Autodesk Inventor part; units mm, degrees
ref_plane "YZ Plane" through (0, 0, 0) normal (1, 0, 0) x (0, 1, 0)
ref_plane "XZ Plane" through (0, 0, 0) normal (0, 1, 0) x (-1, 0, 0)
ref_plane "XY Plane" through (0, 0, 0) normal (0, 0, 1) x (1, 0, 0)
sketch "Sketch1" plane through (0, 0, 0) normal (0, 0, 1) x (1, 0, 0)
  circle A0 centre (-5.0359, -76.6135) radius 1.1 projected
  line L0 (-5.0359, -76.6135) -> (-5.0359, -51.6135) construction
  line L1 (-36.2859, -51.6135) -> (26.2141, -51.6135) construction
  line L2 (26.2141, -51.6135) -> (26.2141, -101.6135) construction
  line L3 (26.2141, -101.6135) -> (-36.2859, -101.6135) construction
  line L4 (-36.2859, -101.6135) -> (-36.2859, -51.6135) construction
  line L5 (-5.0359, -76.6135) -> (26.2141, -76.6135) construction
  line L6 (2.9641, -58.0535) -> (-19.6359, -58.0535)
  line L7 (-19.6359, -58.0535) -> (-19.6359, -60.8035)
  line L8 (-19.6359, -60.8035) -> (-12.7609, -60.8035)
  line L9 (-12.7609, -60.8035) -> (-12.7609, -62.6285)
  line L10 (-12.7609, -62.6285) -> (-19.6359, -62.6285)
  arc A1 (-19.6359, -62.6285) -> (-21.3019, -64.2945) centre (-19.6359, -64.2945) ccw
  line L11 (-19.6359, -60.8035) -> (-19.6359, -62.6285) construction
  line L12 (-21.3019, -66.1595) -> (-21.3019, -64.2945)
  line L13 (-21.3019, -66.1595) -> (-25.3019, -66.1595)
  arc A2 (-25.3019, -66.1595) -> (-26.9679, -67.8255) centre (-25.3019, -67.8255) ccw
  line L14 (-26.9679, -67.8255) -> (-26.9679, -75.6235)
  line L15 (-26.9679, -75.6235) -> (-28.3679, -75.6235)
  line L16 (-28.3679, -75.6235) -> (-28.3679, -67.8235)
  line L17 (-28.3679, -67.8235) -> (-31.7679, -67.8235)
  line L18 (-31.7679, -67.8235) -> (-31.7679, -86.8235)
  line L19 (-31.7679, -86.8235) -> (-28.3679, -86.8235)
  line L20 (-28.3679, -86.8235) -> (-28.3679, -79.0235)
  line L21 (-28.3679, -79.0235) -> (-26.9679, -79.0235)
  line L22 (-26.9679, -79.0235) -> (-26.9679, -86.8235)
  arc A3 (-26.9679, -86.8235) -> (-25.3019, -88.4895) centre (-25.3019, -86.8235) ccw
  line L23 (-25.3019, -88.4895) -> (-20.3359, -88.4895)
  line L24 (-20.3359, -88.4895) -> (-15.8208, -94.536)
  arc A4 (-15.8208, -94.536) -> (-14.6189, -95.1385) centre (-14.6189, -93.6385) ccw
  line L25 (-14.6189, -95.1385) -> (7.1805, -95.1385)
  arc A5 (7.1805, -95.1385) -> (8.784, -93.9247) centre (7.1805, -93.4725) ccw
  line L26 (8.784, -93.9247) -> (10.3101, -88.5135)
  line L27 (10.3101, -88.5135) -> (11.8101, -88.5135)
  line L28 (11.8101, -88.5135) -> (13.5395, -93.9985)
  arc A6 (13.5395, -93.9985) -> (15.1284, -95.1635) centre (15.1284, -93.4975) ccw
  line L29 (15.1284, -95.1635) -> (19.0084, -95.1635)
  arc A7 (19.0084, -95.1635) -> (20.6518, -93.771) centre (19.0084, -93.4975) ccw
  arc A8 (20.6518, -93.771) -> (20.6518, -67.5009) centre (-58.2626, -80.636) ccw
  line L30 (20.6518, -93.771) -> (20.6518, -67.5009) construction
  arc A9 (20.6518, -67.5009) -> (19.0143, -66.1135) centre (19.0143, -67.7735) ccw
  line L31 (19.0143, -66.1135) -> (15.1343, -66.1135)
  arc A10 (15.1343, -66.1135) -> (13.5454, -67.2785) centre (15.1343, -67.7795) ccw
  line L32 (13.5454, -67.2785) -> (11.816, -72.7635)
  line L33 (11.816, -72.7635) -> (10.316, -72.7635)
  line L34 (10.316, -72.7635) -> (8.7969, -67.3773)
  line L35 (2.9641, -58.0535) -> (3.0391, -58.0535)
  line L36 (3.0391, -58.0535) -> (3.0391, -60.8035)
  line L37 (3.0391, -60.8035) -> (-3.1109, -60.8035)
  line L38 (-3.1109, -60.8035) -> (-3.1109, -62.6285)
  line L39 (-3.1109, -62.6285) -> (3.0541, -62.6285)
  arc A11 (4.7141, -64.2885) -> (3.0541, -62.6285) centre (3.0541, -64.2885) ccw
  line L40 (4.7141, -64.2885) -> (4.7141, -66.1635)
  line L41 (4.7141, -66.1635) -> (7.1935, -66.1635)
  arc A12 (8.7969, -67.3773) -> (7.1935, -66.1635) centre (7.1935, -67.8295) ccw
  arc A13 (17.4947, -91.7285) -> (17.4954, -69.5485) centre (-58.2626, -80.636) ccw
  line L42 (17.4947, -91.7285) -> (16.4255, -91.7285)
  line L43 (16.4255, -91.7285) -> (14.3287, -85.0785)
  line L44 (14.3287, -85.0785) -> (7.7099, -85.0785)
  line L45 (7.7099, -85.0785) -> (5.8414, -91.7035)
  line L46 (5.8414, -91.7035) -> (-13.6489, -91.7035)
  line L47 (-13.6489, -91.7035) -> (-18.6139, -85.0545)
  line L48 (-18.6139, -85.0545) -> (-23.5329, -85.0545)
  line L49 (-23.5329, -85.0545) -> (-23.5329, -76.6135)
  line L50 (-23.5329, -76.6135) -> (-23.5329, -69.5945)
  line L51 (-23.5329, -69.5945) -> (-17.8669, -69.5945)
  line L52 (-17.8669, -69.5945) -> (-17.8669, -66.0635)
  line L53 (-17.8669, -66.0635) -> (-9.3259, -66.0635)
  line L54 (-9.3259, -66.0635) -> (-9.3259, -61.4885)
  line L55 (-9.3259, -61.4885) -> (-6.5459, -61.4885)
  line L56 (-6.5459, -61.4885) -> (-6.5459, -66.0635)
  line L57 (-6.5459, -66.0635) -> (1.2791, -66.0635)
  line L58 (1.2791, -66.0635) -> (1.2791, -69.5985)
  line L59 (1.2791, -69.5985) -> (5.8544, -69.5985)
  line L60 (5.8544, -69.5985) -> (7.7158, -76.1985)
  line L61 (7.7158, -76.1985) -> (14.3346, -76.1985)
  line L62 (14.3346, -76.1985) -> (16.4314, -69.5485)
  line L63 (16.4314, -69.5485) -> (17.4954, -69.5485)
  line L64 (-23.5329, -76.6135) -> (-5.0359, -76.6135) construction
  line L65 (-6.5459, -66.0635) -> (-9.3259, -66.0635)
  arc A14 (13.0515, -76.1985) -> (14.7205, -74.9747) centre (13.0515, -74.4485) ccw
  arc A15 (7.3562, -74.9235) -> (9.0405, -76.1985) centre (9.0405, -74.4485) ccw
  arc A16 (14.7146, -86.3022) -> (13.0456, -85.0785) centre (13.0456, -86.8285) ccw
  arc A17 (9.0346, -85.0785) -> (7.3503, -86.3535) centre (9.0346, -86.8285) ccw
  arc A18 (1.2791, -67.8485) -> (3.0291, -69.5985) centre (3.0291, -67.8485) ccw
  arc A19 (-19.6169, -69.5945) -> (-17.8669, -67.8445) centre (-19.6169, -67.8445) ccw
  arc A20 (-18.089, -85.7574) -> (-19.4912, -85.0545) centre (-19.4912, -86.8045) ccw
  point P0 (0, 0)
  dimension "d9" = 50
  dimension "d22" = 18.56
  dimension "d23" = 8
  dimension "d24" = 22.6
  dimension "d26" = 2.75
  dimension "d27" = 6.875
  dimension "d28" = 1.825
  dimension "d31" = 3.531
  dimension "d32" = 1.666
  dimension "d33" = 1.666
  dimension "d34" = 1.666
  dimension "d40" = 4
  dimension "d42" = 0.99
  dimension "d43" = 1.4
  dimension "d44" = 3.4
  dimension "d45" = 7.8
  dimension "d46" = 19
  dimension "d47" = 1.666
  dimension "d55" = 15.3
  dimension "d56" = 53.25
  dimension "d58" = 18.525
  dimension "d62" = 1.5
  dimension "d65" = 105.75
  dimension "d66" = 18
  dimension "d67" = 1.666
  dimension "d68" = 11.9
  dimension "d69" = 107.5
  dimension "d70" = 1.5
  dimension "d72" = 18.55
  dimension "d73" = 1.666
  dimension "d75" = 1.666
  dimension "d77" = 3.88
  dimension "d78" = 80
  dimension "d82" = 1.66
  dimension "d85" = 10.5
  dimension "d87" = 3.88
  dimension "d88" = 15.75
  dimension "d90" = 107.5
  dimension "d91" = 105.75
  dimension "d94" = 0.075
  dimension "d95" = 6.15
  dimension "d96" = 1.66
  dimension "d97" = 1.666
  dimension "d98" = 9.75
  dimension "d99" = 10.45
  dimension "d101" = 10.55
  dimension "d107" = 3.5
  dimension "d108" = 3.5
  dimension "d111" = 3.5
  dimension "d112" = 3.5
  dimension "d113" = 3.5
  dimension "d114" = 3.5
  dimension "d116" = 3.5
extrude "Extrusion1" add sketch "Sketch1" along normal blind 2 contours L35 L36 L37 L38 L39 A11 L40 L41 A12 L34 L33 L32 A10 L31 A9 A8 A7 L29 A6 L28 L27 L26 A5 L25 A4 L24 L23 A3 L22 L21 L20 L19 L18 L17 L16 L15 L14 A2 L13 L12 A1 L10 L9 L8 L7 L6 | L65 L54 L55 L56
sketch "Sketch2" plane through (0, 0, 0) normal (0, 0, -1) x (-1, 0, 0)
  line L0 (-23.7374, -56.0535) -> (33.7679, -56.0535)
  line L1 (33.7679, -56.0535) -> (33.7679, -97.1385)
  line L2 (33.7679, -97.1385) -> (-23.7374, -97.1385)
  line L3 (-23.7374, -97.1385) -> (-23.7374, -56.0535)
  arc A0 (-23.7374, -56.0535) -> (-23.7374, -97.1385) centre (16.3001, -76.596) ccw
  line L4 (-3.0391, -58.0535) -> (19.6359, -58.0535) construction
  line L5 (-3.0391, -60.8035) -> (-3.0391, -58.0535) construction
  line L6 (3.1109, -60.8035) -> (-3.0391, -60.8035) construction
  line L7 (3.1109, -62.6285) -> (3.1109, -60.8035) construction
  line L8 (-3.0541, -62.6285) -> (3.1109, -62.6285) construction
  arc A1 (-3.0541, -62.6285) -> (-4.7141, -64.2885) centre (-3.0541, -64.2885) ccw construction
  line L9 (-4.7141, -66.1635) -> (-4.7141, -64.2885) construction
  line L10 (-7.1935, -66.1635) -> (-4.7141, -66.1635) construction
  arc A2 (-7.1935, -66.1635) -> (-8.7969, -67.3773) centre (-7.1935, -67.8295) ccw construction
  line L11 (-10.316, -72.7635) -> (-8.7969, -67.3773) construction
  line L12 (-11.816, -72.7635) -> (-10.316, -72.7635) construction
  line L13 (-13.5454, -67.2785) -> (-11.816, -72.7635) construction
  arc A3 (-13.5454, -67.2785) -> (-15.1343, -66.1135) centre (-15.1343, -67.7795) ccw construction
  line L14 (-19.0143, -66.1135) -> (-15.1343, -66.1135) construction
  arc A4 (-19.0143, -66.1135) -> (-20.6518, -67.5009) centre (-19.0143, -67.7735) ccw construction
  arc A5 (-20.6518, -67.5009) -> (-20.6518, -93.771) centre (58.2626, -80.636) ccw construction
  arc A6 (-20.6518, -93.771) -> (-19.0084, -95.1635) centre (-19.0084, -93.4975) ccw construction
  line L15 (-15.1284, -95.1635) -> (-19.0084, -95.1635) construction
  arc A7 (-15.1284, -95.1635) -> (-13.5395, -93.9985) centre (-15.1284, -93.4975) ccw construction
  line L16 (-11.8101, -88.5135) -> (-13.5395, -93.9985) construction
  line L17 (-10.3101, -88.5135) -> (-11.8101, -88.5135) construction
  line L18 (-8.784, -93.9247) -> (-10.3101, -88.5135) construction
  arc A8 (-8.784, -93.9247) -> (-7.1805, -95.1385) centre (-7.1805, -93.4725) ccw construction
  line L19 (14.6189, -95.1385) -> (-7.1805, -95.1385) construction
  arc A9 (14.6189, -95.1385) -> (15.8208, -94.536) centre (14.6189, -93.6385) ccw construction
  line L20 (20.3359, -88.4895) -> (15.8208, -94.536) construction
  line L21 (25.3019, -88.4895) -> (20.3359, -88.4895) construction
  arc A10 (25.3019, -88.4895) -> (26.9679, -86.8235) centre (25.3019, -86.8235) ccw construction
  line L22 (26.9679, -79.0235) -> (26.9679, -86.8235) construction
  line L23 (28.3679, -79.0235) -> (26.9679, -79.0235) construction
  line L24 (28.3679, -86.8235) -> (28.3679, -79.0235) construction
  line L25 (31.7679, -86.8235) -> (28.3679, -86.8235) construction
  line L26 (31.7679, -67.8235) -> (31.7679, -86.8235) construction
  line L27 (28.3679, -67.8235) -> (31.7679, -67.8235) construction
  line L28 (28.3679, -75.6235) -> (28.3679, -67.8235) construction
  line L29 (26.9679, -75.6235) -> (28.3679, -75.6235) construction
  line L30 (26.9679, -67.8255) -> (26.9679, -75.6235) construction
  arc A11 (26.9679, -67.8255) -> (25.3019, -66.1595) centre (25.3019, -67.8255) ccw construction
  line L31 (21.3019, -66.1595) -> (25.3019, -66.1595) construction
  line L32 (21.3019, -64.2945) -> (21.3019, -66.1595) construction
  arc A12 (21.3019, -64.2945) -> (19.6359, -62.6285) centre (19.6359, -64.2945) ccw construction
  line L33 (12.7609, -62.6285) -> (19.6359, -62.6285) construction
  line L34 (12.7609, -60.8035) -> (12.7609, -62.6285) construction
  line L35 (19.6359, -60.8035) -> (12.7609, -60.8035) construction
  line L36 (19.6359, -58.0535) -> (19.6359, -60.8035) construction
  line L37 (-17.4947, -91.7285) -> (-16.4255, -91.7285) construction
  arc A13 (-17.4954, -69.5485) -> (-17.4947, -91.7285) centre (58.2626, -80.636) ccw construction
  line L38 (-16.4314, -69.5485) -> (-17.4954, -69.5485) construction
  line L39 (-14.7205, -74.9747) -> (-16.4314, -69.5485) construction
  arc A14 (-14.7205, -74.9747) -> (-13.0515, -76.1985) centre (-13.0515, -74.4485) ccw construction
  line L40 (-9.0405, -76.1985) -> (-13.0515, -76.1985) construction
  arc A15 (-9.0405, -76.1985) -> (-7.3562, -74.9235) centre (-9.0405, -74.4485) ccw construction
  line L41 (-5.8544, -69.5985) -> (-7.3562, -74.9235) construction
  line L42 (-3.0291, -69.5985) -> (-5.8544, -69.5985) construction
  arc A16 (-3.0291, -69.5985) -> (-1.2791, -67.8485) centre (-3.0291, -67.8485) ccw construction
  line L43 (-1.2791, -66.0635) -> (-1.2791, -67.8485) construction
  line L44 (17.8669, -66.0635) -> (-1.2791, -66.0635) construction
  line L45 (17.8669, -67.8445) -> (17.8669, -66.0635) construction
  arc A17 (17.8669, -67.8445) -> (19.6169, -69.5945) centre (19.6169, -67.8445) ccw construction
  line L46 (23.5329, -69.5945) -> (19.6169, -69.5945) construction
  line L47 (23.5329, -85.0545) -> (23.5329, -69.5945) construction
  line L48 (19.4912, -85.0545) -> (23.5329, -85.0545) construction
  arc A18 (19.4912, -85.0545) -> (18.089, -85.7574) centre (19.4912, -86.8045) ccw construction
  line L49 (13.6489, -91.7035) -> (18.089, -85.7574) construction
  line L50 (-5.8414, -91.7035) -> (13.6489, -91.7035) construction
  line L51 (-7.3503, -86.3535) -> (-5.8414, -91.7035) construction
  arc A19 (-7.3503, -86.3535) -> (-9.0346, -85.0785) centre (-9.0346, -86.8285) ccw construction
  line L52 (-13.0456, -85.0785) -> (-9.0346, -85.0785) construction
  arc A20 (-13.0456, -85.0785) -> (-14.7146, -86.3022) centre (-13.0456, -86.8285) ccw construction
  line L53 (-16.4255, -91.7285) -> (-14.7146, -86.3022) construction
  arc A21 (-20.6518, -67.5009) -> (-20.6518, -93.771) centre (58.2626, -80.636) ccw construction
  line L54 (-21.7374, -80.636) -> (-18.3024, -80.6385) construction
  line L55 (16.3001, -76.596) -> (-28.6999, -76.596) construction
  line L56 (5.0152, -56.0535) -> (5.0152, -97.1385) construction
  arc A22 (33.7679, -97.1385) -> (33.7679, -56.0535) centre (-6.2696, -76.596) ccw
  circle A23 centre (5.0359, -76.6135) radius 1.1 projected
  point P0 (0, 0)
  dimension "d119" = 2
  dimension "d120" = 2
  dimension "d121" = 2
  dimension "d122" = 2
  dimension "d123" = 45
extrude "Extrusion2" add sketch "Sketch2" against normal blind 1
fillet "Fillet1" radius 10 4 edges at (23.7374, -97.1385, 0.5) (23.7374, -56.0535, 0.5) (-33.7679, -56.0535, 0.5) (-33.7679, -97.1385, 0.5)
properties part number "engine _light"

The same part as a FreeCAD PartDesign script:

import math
import FreeCAD as App
import Part
import Sketcher

V = App.Vector


def edges_at(feature, points):
    """Names of the edges that pass closest to the given points."""
    edges = feature.Shape.Edges
    near = lambda p: min(range(len(edges)), key=lambda i: edges[i].distToShape(Part.Vertex(*p))[0])
    return sorted({f"Edge{near(p) + 1}" for p in points})

doc = App.newDocument("Part")
params = doc.addObject("Spreadsheet::Sheet", "Params")
for row, (alias, value) in enumerate([
    ("sketch1_radius", "80 mm"),
    ("sketch1_radius2", "1.5 mm"),
    ("sketch1_width", "4 mm"),
    ("sketch1_height", "19 mm"),
    ("sketch1_radius3", "1.66 mm"),
    ("pad1_length", "2 mm"),
    ("sketch2_radius", "45 mm"),
    ("sketch2_diameter", "2.2 mm"),
    ("pad2_length", "1 mm"),
    ("fillet_radius", "10 mm"),
], start=1):
    params.set(f"A{row}", alias)
    params.set(f"B{row}", "=" + value)
    params.setAlias(f"B{row}", alias)

body = doc.addObject("PartDesign::Body", "Body")

# Sketch on XY plane
sketch1 = body.newObject("Sketcher::SketchObject", "Sketch")
sketch1.AttachmentSupport = (doc.getObject("XY_Plane"), [""])
sketch1.MapMode = "FlatFace"
sketch1.addGeometry([
    Part.LineSegment(V(3.0391, -58.0535, 0), V(-19.6359, -58.0535, 0)),  # 0
    Part.LineSegment(V(-19.6359, -58.0535, 0), V(-19.6359, -60.8035, 0)),  # 1
    Part.LineSegment(V(-19.6359, -60.8035, 0), V(-12.7609, -60.8035, 0)),  # 2
    Part.LineSegment(V(-12.7609, -60.8035, 0), V(-12.7609, -62.6285, 0)),  # 3
    Part.LineSegment(V(-12.7609, -62.6285, 0), V(-19.6359, -62.6285, 0)),  # 4
    Part.ArcOfCircle(Part.Circle(V(-19.6359, -64.2945, 0), V(0, 0, 1), 1.666), math.radians(90), math.radians(180)),  # 5
    Part.LineSegment(V(-21.3019, -64.2945, 0), V(-21.3019, -66.1595, 0)),  # 6
    Part.LineSegment(V(-21.3019, -66.1595, 0), V(-25.3019, -66.1595, 0)),  # 7
    Part.ArcOfCircle(Part.Circle(V(-25.3019, -67.8255, 0), V(0, 0, 1), 1.666), math.radians(90), math.radians(180)),  # 8
    Part.LineSegment(V(-26.9679, -67.8255, 0), V(-26.9679, -75.6235, 0)),  # 9
    Part.LineSegment(V(-26.9679, -75.6235, 0), V(-28.3679, -75.6235, 0)),  # 10
    Part.LineSegment(V(-28.3679, -75.6235, 0), V(-28.3679, -67.8235, 0)),  # 11
    Part.LineSegment(V(-28.3679, -67.8235, 0), V(-31.7679, -67.8235, 0)),  # 12
    Part.LineSegment(V(-31.7679, -67.8235, 0), V(-31.7679, -86.8235, 0)),  # 13
    Part.LineSegment(V(-31.7679, -86.8235, 0), V(-28.3679, -86.8235, 0)),  # 14
    Part.LineSegment(V(-28.3679, -86.8235, 0), V(-28.3679, -79.0235, 0)),  # 15
    Part.LineSegment(V(-28.3679, -79.0235, 0), V(-26.9679, -79.0235, 0)),  # 16
    Part.LineSegment(V(-26.9679, -79.0235, 0), V(-26.9679, -86.8235, 0)),  # 17
    Part.ArcOfCircle(Part.Circle(V(-25.3019, -86.8235, 0), V(0, 0, 1), 1.666), math.radians(180), math.radians(270)),  # 18
    Part.LineSegment(V(-25.3019, -88.4895, 0), V(-20.3359, -88.4895, 0)),  # 19
    Part.LineSegment(V(-20.3359, -88.4895, 0), V(-15.8208, -94.536, 0)),  # 20
    Part.ArcOfCircle(Part.Circle(V(-14.6189, -93.6385, 0), V(0, 0, 1), 1.500023), math.radians(-143.25004), math.radians(-90)),  # 21
    Part.LineSegment(V(-14.6189, -95.1385, 0), V(7.1805, -95.1385, 0)),  # 22
    Part.ArcOfCircle(Part.Circle(V(7.1805, -93.4725, 0), V(0, 0, 1), 1.666), math.radians(-90), math.radians(-15.748882)),  # 23
    Part.LineSegment(V(8.784, -93.9247, 0), V(10.3101, -88.5135, 0)),  # 24
    Part.LineSegment(V(10.3101, -88.5135, 0), V(11.8101, -88.5135, 0)),  # 25
    Part.LineSegment(V(11.8101, -88.5135, 0), V(13.5395, -93.9985, 0)),  # 26
    Part.ArcOfCircle(Part.Circle(V(15.1284, -93.4975, 0), V(0, 0, 1), 1.666014), math.radians(-162.499286), math.radians(-90)),  # 27
    Part.LineSegment(V(15.1284, -95.1635, 0), V(19.0084, -95.1635, 0)),  # 28
    Part.ArcOfCircle(Part.Circle(V(19.0084, -93.4975, 0), V(0, 0, 1), 1.666), math.radians(-90), math.radians(-9.448753)),  # 29
    Part.ArcOfCircle(Part.Circle(V(-58.2626, -80.636, 0), V(0, 0, 1), 80.000067), math.radians(-9.45003), math.radians(9.450101)),  # 30
    Part.ArcOfCircle(Part.Circle(V(19.0143, -67.7735, 0), V(0, 0, 1), 1.660035), math.radians(9.451541), math.radians(90)),  # 31
    Part.LineSegment(V(19.0143, -66.1135, 0), V(15.1343, -66.1135, 0)),  # 32
    Part.ArcOfCircle(Part.Circle(V(15.1343, -67.7795, 0), V(0, 0, 1), 1.666), math.radians(90), math.radians(162.499286)),  # 33
    Part.LineSegment(V(13.5454, -67.2785, 0), V(11.816, -72.7635, 0)),  # 34
    Part.LineSegment(V(11.816, -72.7635, 0), V(10.316, -72.7635, 0)),  # 35
    Part.LineSegment(V(10.316, -72.7635, 0), V(8.7969, -67.3773, 0)),  # 36
    Part.ArcOfCircle(Part.Circle(V(7.1935, -67.8295, 0), V(0, 0, 1), 1.665946), math.radians(15.749816), math.radians(90)),  # 37
    Part.LineSegment(V(7.1935, -66.1635, 0), V(4.7141, -66.1635, 0)),  # 38
    Part.LineSegment(V(4.7141, -66.1635, 0), V(4.7141, -64.2885, 0)),  # 39
    Part.ArcOfCircle(Part.Circle(V(3.0541, -64.2885, 0), V(0, 0, 1), 1.66), math.radians(0), math.radians(90)),  # 40
    Part.LineSegment(V(3.0541, -62.6285, 0), V(-3.1109, -62.6285, 0)),  # 41
    Part.LineSegment(V(-3.1109, -62.6285, 0), V(-3.1109, -60.8035, 0)),  # 42
    Part.LineSegment(V(-3.1109, -60.8035, 0), V(3.0391, -60.8035, 0)),  # 43
    Part.LineSegment(V(3.0391, -60.8035, 0), V(3.0391, -58.0535, 0)),  # 44
    Part.ArcOfCircle(Part.Circle(V(-58.261102, -80.636109, 0), V(0, 0, 1), 76.563585), math.radians(-8.330223), math.radians(8.326607)),  # 45
    Part.LineSegment(V(17.4947, -91.7285, 0), V(16.4255, -91.7285, 0)),  # 46
    Part.LineSegment(V(16.4255, -91.7285, 0), V(14.714548, -86.302216, 0)),  # 47
    Part.ArcOfCircle(Part.Circle(V(13.0456, -86.8285, 0), V(0, 0, 1), 1.750015), math.radians(17.502071), math.radians(90)),  # 48
    Part.LineSegment(V(13.0456, -85.0785, 0), V(9.0346, -85.0785, 0)),  # 49
    Part.ArcOfCircle(Part.Circle(V(9.0346, -86.8285, 0), V(0, 0, 1), 1.75), math.radians(90), math.radians(164.250685)),  # 50
    Part.LineSegment(V(7.350302, -86.3535, 0), V(5.8414, -91.7035, 0)),  # 51
    Part.LineSegment(V(5.8414, -91.7035, 0), V(-13.6489, -91.7035, 0)),  # 52
    Part.LineSegment(V(-13.6489, -91.7035, 0), V(-18.089016, -85.757412, 0)),  # 53
    Part.ArcOfCircle(Part.Circle(V(-19.4912, -86.8045, 0), V(0, 0, 1), 1.750024), math.radians(36.750724), math.radians(90)),  # 54
    Part.LineSegment(V(-19.4912, -85.0545, 0), V(-23.5329, -85.0545, 0)),  # 55
    Part.LineSegment(V(-23.5329, -85.0545, 0), V(-23.5329, -69.5945, 0)),  # 56
    Part.LineSegment(V(-23.5329, -69.5945, 0), V(-19.6169, -69.5945, 0)),  # 57
    Part.ArcOfCircle(Part.Circle(V(-19.6169, -67.8445, 0), V(0, 0, 1), 1.75), math.radians(-90), math.radians(0)),  # 58
    Part.LineSegment(V(-17.8669, -67.8445, 0), V(-17.8669, -66.0635, 0)),  # 59
    Part.LineSegment(V(-17.8669, -66.0635, 0), V(1.2791, -66.0635, 0)),  # 60
    Part.LineSegment(V(1.2791, -66.0635, 0), V(1.2791, -67.8485, 0)),  # 61
    Part.ArcOfCircle(Part.Circle(V(3.0291, -67.8485, 0), V(0, 0, 1), 1.75), math.radians(180), math.radians(270)),  # 62
    Part.LineSegment(V(3.0291, -69.5985, 0), V(5.8544, -69.5985, 0)),  # 63
    Part.LineSegment(V(5.8544, -69.5985, 0), V(7.356211, -74.923497, 0)),  # 64
    Part.ArcOfCircle(Part.Circle(V(9.0405, -74.4485, 0), V(0, 0, 1), 1.749998), math.radians(-164.250685), math.radians(-90)),  # 65
    Part.LineSegment(V(9.0405, -76.1985, 0), V(13.0515, -76.1985, 0)),  # 66
    Part.ArcOfCircle(Part.Circle(V(13.0515, -74.4485, 0), V(0, 0, 1), 1.75), math.radians(-90), math.radians(-17.498948)),  # 67
    Part.LineSegment(V(14.720477, -74.974693, 0), V(16.4314, -69.5485, 0)),  # 68
    Part.LineSegment(V(16.4314, -69.5485, 0), V(17.4954, -69.5485, 0)),  # 69
], False)
sketch1.addConstraint([
    Sketcher.Constraint("Coincident", 0, 2, 1, 1),
    Sketcher.Constraint("Coincident", 1, 2, 2, 1),
    Sketcher.Constraint("Coincident", 2, 2, 3, 1),
    Sketcher.Constraint("Coincident", 3, 2, 4, 1),
    Sketcher.Constraint("Coincident", 4, 2, 5, 1),
    Sketcher.Constraint("Coincident", 5, 2, 6, 1),
    Sketcher.Constraint("Coincident", 6, 2, 7, 1),
    Sketcher.Constraint("Coincident", 7, 2, 8, 1),
    Sketcher.Constraint("Coincident", 8, 2, 9, 1),
    Sketcher.Constraint("Coincident", 9, 2, 10, 1),
    Sketcher.Constraint("Coincident", 10, 2, 11, 1),
    Sketcher.Constraint("Coincident", 11, 2, 12, 1),
    Sketcher.Constraint("Coincident", 12, 2, 13, 1),
    Sketcher.Constraint("Coincident", 13, 2, 14, 1),
    Sketcher.Constraint("Coincident", 14, 2, 15, 1),
    Sketcher.Constraint("Coincident", 15, 2, 16, 1),
    Sketcher.Constraint("Coincident", 16, 2, 17, 1),
    Sketcher.Constraint("Coincident", 17, 2, 18, 1),
    Sketcher.Constraint("Coincident", 18, 2, 19, 1),
    Sketcher.Constraint("Coincident", 19, 2, 20, 1),
    Sketcher.Constraint("Coincident", 20, 2, 21, 1),
    Sketcher.Constraint("Coincident", 21, 2, 22, 1),
    Sketcher.Constraint("Coincident", 22, 2, 23, 1),
    Sketcher.Constraint("Coincident", 23, 2, 24, 1),
    Sketcher.Constraint("Coincident", 24, 2, 25, 1),
    Sketcher.Constraint("Coincident", 25, 2, 26, 1),
    Sketcher.Constraint("Coincident", 26, 2, 27, 1),
    Sketcher.Constraint("Coincident", 27, 2, 28, 1),
    Sketcher.Constraint("Coincident", 28, 2, 29, 1),
    Sketcher.Constraint("Coincident", 29, 2, 30, 1),
    Sketcher.Constraint("Coincident", 30, 2, 31, 1),
    Sketcher.Constraint("Coincident", 31, 2, 32, 1),
    Sketcher.Constraint("Coincident", 32, 2, 33, 1),
    Sketcher.Constraint("Coincident", 33, 2, 34, 1),
    Sketcher.Constraint("Coincident", 34, 2, 35, 1),
    Sketcher.Constraint("Coincident", 35, 2, 36, 1),
    Sketcher.Constraint("Coincident", 36, 2, 37, 1),
    Sketcher.Constraint("Coincident", 37, 2, 38, 1),
    Sketcher.Constraint("Coincident", 38, 2, 39, 1),
    Sketcher.Constraint("Coincident", 39, 2, 40, 1),
    Sketcher.Constraint("Coincident", 40, 2, 41, 1),
    Sketcher.Constraint("Coincident", 41, 2, 42, 1),
    Sketcher.Constraint("Coincident", 42, 2, 43, 1),
    Sketcher.Constraint("Coincident", 43, 2, 44, 1),
    Sketcher.Constraint("Coincident", 44, 2, 0, 1),
    Sketcher.Constraint("Coincident", 45, 1, 46, 1),
    Sketcher.Constraint("Coincident", 46, 2, 47, 1),
    Sketcher.Constraint("Coincident", 47, 2, 48, 1),
    Sketcher.Constraint("Coincident", 48, 2, 49, 1),
    Sketcher.Constraint("Coincident", 49, 2, 50, 1),
    Sketcher.Constraint("Coincident", 50, 2, 51, 1),
    Sketcher.Constraint("Coincident", 51, 2, 52, 1),
    Sketcher.Constraint("Coincident", 52, 2, 53, 1),
    Sketcher.Constraint("Coincident", 53, 2, 54, 1),
    Sketcher.Constraint("Coincident", 54, 2, 55, 1),
    Sketcher.Constraint("Coincident", 55, 2, 56, 1),
    Sketcher.Constraint("Coincident", 56, 2, 57, 1),
    Sketcher.Constraint("Coincident", 57, 2, 58, 1),
    Sketcher.Constraint("Coincident", 58, 2, 59, 1),
    Sketcher.Constraint("Coincident", 59, 2, 60, 1),
    Sketcher.Constraint("Coincident", 60, 2, 61, 1),
    Sketcher.Constraint("Coincident", 61, 2, 62, 1),
    Sketcher.Constraint("Coincident", 62, 2, 63, 1),
    Sketcher.Constraint("Coincident", 63, 2, 64, 1),
    Sketcher.Constraint("Coincident", 64, 2, 65, 1),
    Sketcher.Constraint("Coincident", 65, 2, 66, 1),
    Sketcher.Constraint("Coincident", 66, 2, 67, 1),
    Sketcher.Constraint("Coincident", 67, 2, 68, 1),
    Sketcher.Constraint("Coincident", 68, 2, 69, 1),
    Sketcher.Constraint("Coincident", 69, 2, 45, 2),
    Sketcher.Constraint("Horizontal", 0),
    Sketcher.Constraint("Vertical", 1),
    Sketcher.Constraint("Horizontal", 2),
    Sketcher.Constraint("Vertical", 3),
    Sketcher.Constraint("Horizontal", 4),
    Sketcher.Constraint("Vertical", 6),
    Sketcher.Constraint("Horizontal", 7),
    Sketcher.Constraint("Vertical", 9),
    Sketcher.Constraint("Horizontal", 10),
    Sketcher.Constraint("Vertical", 11),
    Sketcher.Constraint("Horizontal", 12),
    Sketcher.Constraint("Vertical", 13),
    Sketcher.Constraint("Horizontal", 14),
    Sketcher.Constraint("Vertical", 15),
    Sketcher.Constraint("Horizontal", 16),
    Sketcher.Constraint("Vertical", 17),
    Sketcher.Constraint("Horizontal", 19),
    Sketcher.Constraint("Horizontal", 22),
    Sketcher.Constraint("Horizontal", 25),
    Sketcher.Constraint("Horizontal", 28),
    Sketcher.Constraint("Horizontal", 32),
    Sketcher.Constraint("Horizontal", 35),
    Sketcher.Constraint("Horizontal", 38),
    Sketcher.Constraint("Vertical", 39),
    Sketcher.Constraint("Horizontal", 41),
    Sketcher.Constraint("Vertical", 42),
    Sketcher.Constraint("Horizontal", 43),
    Sketcher.Constraint("Vertical", 44),
    Sketcher.Constraint("Horizontal", 46),
    Sketcher.Constraint("Horizontal", 49),
    Sketcher.Constraint("Horizontal", 52),
    Sketcher.Constraint("Horizontal", 55),
    Sketcher.Constraint("Vertical", 56),
    Sketcher.Constraint("Horizontal", 57),
    Sketcher.Constraint("Vertical", 59),
    Sketcher.Constraint("Horizontal", 60),
    Sketcher.Constraint("Vertical", 61),
    Sketcher.Constraint("Horizontal", 63),
    Sketcher.Constraint("Horizontal", 66),
    Sketcher.Constraint("Horizontal", 69),
    Sketcher.Constraint("Radius", 30, 80.0),
    Sketcher.Constraint("Radius", 21, 1.5),
    Sketcher.Constraint("DistanceX", 7, 2, 7, 1, 4.0),
    Sketcher.Constraint("DistanceY", 13, 2, 13, 1, 19.0),
    Sketcher.Constraint("Radius", 31, 1.66),
    Sketcher.Constraint("Radius", 40, 1.66),
    Sketcher.Constraint("Radius", 48, 1.75),
    Sketcher.Constraint("Radius", 50, 1.75),
    Sketcher.Constraint("Radius", 54, 1.75),
    Sketcher.Constraint("Radius", 58, 1.75),
    Sketcher.Constraint("Radius", 62, 1.75),
    Sketcher.Constraint("Radius", 65, 1.75),
    Sketcher.Constraint("Radius", 67, 1.75),
    Sketcher.Constraint("DistanceX", 10, 2, 10, 1, 1.4),
    Sketcher.Constraint("DistanceX", 12, 2, 12, 1, 3.4),
    Sketcher.Constraint("DistanceX", 14, 1, 14, 2, 3.4),
    Sketcher.Constraint("DistanceX", 16, 1, 16, 2, 1.4),
    Sketcher.Constraint("DistanceX", 25, 1, 25, 2, 1.5),
    Sketcher.Constraint("DistanceX", 35, 2, 35, 1, 1.5),
    Sketcher.Constraint("DistanceY", 11, 1, 11, 2, 7.8),
    Sketcher.Constraint("DistanceY", 15, 1, 15, 2, 7.8),
    Sketcher.Constraint("DistanceY", 17, 2, 17, 1, 7.8),
    Sketcher.Constraint("Radius", 5, 1.666),
    Sketcher.Constraint("Radius", 8, 1.666),
    Sketcher.Constraint("Radius", 18, 1.666),
    Sketcher.Constraint("Radius", 23, 1.666),
    Sketcher.Constraint("Radius", 27, 1.666),
    Sketcher.Constraint("Radius", 29, 1.666),
    Sketcher.Constraint("Radius", 33, 1.666),
    Sketcher.Constraint("Radius", 37, 1.666),
    Sketcher.Constraint("DistanceX", 28, 1, 28, 2, 3.88),
    Sketcher.Constraint("DistanceX", 32, 2, 32, 1, 3.88),
    Sketcher.Constraint("DistanceX", 43, 1, 43, 2, 6.15),
    Sketcher.Constraint("DistanceY", 1, 2, 1, 1, 2.75),
    Sketcher.Constraint("DistanceY", 44, 1, 44, 2, 2.75),
    Sketcher.Constraint("DistanceX", 2, 1, 2, 2, 6.875),
    Sketcher.Constraint("DistanceX", 4, 2, 4, 1, 6.875),
    Sketcher.Constraint("DistanceY", 3, 2, 3, 1, 1.825),
    Sketcher.Constraint("DistanceY", 42, 1, 42, 2, 1.825),
    Sketcher.Constraint("DistanceY", 56, 1, 56, 2, 15.46),
    Sketcher.Constraint("Radius", 45, 76.5636),
    Sketcher.Constraint("DistanceX", 0, 2, 0, 1, 22.675),
    Sketcher.Constraint("DistanceX", 19, 1, 19, 2, 4.966),
    Sketcher.Constraint("DistanceX", 41, 2, 41, 1, 6.165),
    Sketcher.Constraint("DistanceX", 49, 2, 49, 1, 4.011),
    Sketcher.Constraint("DistanceX", 57, 1, 57, 2, 3.916),
    Sketcher.Constraint("DistanceX", 60, 1, 60, 2, 19.146),
    Sketcher.Constraint("DistanceX", 66, 1, 66, 2, 4.011),
    Sketcher.Constraint("DistanceX", 69, 1, 69, 2, 1.064),
    Sketcher.Constraint("DistanceY", 6, 2, 6, 1, 1.865),
    Sketcher.Constraint("DistanceY", 9, 2, 9, 1, 7.798),
    Sketcher.Constraint("DistanceY", 39, 1, 39, 2, 1.875),
    Sketcher.Constraint("DistanceY", 59, 1, 59, 2, 1.781),
    Sketcher.Constraint("DistanceY", 61, 2, 61, 1, 1.785),
    Sketcher.Constraint("DistanceX", -1, 1, 24, 2, 10.31),
    Sketcher.Constraint("Distance", 53, 7.421),
    Sketcher.Constraint("DistanceX", 22, 1, 22, 2, 21.7994),
    Sketcher.Constraint("DistanceX", 38, 2, 38, 1, 2.4794),
    Sketcher.Constraint("DistanceX", 46, 2, 46, 1, 1.0692),
    Sketcher.Constraint("DistanceX", 52, 2, 52, 1, 19.4903),
    Sketcher.Constraint("DistanceX", 55, 2, 55, 1, 4.0417),
    Sketcher.Constraint("DistanceX", 63, 1, 63, 2, 2.8253),
    Sketcher.Constraint("DistanceX", 5, 3, -1, 1, 19.636),
    Sketcher.Constraint("DistanceX", 8, 3, -1, 1, 25.302),
    Sketcher.Constraint("DistanceX", 21, 3, -1, 1, 14.619),
    Sketcher.Constraint("DistanceY", 30, 3, -1, 1, 80.636),
    Sketcher.Constraint("DistanceX", -1, 1, 40, 3, 3.054),
    Sketcher.Constraint("DistanceX", 45, 3, -1, 1, 58.261),
    Sketcher.Constraint("DistanceY", 45, 3, -1, 1, 80.636),
    Sketcher.Constraint("DistanceX", 58, 3, -1, 1, 19.617),
    Sketcher.Constraint("DistanceX", 0, 2, -1, 1, 19.636),
    Sketcher.Constraint("DistanceX", 18, 2, -1, 1, 25.302),
    Sketcher.Constraint("DistanceY", 20, 2, -1, 1, 94.536),
    Sketcher.Constraint("DistanceX", 21, 2, -1, 1, 14.619),
    Sketcher.Constraint("DistanceX", -1, 1, 23, 2, 8.784),
    Sketcher.Constraint("DistanceY", 29, 2, -1, 1, 93.771),
    Sketcher.Constraint("DistanceY", 30, 2, -1, 1, 67.501),
    Sketcher.Constraint("DistanceX", -1, 1, 34, 2, 11.816),
    Sketcher.Constraint("DistanceX", -1, 1, 36, 2, 8.797),
    Sketcher.Constraint("DistanceX", 52, 2, -1, 1, 13.649),
    Sketcher.Constraint("DistanceX", 53, 2, -1, 1, 18.089),
    Sketcher.Constraint("DistanceX", 55, 2, -1, 1, 23.533),
    Sketcher.Constraint("DistanceX", -1, 1, 62, 2, 3.029),
    Sketcher.Constraint("Distance", 20, 7.5463),
    Sketcher.Constraint("Distance", 24, 5.6223),
    Sketcher.Constraint("Distance", 26, 5.7512),
    Sketcher.Constraint("Distance", 34, 5.7512),
    Sketcher.Constraint("Distance", 36, 5.5963),
    Sketcher.Constraint("Distance", 47, 5.6896),
    Sketcher.Constraint("Distance", 51, 5.5587),
    Sketcher.Constraint("Distance", 64, 5.5327),
    Sketcher.Constraint("Distance", 68, 5.6895),
    Sketcher.Constraint("DistanceY", 5, 3, -1, 1, 64.2945),
    Sketcher.Constraint("DistanceY", 8, 3, -1, 1, 67.8255),
    Sketcher.Constraint("DistanceY", 18, 3, -1, 1, 86.8235),
    Sketcher.Constraint("DistanceX", -1, 1, 23, 3, 7.1805),
    Sketcher.Constraint("DistanceX", -1, 1, 27, 3, 15.1284),
    Sketcher.Constraint("DistanceY", 27, 3, -1, 1, 93.4975),
    Sketcher.Constraint("DistanceX", -1, 1, 29, 3, 19.0084),
    Sketcher.Constraint("DistanceX", -1, 1, 31, 3, 19.0143),
    Sketcher.Constraint("DistanceX", -1, 1, 33, 3, 15.1343),
    Sketcher.Constraint("DistanceX", -1, 1, 37, 3, 7.1935),
    Sketcher.Constraint("DistanceY", 37, 3, -1, 1, 67.8295),
    Sketcher.Constraint("DistanceX", -1, 1, 48, 3, 13.0456),
    Sketcher.Constraint("DistanceY", 48, 3, -1, 1, 86.8285),
    Sketcher.Constraint("DistanceX", -1, 1, 50, 3, 9.0346),
    Sketcher.Constraint("DistanceX", 54, 3, -1, 1, 19.4912),
    Sketcher.Constraint("DistanceY", 54, 3, -1, 1, 86.8045),
    Sketcher.Constraint("DistanceY", 62, 3, -1, 1, 67.8485),
    Sketcher.Constraint("DistanceX", -1, 1, 65, 3, 9.0405),
    Sketcher.Constraint("DistanceY", 65, 3, -1, 1, 74.4485),
    Sketcher.Constraint("DistanceX", -1, 1, 67, 3, 13.0515),
    Sketcher.Constraint("DistanceY", 8, 2, -1, 1, 67.8255),
    Sketcher.Constraint("DistanceX", -1, 1, 27, 2, 15.1284),
    Sketcher.Constraint("DistanceX", -1, 1, 31, 2, 19.0143),
    Sketcher.Constraint("DistanceX", -1, 1, 45, 1, 17.4947),
    Sketcher.Constraint("DistanceX", -1, 1, 48, 2, 13.0456),
    Sketcher.Constraint("DistanceY", 58, 2, -1, 1, 67.8445),
    Sketcher.Constraint("DistanceX", -1, 1, 65, 2, 9.0405),
    Sketcher.Constraint("DistanceX", -1, 1, 67, 2, 14.7205),
])
sketch1.setExpression("Constraints[110]", "Params.sketch1_radius")
sketch1.setExpression("Constraints[111]", "Params.sketch1_radius2")
sketch1.setExpression("Constraints[112]", "Params.sketch1_width")
sketch1.setExpression("Constraints[113]", "Params.sketch1_height")
sketch1.setExpression("Constraints[114]", "Params.sketch1_radius3")
pad1 = body.newObject("PartDesign::Pad", "Pad")
pad1.Profile = sketch1
pad1.setExpression("Length", "Params.pad1_length")

# Sketch on XY plane
sketch2 = body.newObject("Sketcher::SketchObject", "Sketch001")
sketch2.AttachmentSupport = (doc.getObject("XY_Plane"), [""])
sketch2.MapMode = "FlatFace"
sketch2.addGeometry([
    Part.LineSegment(V(-33.7679, -56.0535, 0), V(23.7374, -56.0535, 0)),  # 0
    Part.ArcOfCircle(Part.Circle(V(-16.3001, -76.596, 0), V(0, 0, 1), 44.999952), math.radians(-27.16152), math.radians(27.16152)),  # 1
    Part.LineSegment(V(23.7374, -97.1385, 0), V(-33.7679, -97.1385, 0)),  # 2
    Part.ArcOfCircle(Part.Circle(V(6.2696, -76.596, 0), V(0, 0, 1), 44.999952), math.radians(152.83848), math.radians(207.16152)),  # 3
    Part.Circle(V(-5.0359, -76.6135, 0), V(0, 0, 1), 1.1),  # 4
], False)
sketch2.addConstraint([
    Sketcher.Constraint("Coincident", 0, 2, 1, 2),
    Sketcher.Constraint("Coincident", 1, 1, 2, 1),
    Sketcher.Constraint("Coincident", 2, 2, 3, 2),
    Sketcher.Constraint("Coincident", 3, 1, 0, 1),
    Sketcher.Constraint("Horizontal", 0),
    Sketcher.Constraint("Horizontal", 2),
    Sketcher.Constraint("Equal", 1, 3),
    Sketcher.Constraint("Horizontal", 1, 3, 3, 3),
    Sketcher.Constraint("Vertical", 0, 2, 1, 1),
    Sketcher.Constraint("Radius", 1, 45.0),
    Sketcher.Constraint("Diameter", 4, 2.2),
    Sketcher.Constraint("DistanceX", 1, 3, -1, 1, 16.3),
    Sketcher.Constraint("DistanceY", 4, 3, 0, 2, 20.56),
    Sketcher.Constraint("DistanceX", 0, 1, 0, 2, 57.5053),
    Sketcher.Constraint("DistanceY", 1, 3, -1, 1, 76.596),
    Sketcher.Constraint("DistanceX", 4, 3, -1, 1, 5.036),
    Sketcher.Constraint("DistanceX", 2, 2, -1, 1, 33.768),
])
sketch2.setExpression("Constraints[9]", "Params.sketch2_radius")
sketch2.setExpression("Constraints[10]", "Params.sketch2_diameter")
pad2 = body.newObject("PartDesign::Pad", "Pad001")
pad2.Profile = sketch2
pad2.setExpression("Length", "Params.pad2_length")
doc.recompute()

fillet = body.newObject("PartDesign::Fillet", "Fillet")
fillet.Base = (pad2, edges_at(pad2, [
    (23.737, -97.138, 0.5),
    (23.737, -56.053, 0.5),
    (-33.768, -56.053, 0.5),
    (-33.768, -97.138, 0.5),
]))
fillet.setExpression("Radius", "Params.fillet_radius")

doc.recompute()
